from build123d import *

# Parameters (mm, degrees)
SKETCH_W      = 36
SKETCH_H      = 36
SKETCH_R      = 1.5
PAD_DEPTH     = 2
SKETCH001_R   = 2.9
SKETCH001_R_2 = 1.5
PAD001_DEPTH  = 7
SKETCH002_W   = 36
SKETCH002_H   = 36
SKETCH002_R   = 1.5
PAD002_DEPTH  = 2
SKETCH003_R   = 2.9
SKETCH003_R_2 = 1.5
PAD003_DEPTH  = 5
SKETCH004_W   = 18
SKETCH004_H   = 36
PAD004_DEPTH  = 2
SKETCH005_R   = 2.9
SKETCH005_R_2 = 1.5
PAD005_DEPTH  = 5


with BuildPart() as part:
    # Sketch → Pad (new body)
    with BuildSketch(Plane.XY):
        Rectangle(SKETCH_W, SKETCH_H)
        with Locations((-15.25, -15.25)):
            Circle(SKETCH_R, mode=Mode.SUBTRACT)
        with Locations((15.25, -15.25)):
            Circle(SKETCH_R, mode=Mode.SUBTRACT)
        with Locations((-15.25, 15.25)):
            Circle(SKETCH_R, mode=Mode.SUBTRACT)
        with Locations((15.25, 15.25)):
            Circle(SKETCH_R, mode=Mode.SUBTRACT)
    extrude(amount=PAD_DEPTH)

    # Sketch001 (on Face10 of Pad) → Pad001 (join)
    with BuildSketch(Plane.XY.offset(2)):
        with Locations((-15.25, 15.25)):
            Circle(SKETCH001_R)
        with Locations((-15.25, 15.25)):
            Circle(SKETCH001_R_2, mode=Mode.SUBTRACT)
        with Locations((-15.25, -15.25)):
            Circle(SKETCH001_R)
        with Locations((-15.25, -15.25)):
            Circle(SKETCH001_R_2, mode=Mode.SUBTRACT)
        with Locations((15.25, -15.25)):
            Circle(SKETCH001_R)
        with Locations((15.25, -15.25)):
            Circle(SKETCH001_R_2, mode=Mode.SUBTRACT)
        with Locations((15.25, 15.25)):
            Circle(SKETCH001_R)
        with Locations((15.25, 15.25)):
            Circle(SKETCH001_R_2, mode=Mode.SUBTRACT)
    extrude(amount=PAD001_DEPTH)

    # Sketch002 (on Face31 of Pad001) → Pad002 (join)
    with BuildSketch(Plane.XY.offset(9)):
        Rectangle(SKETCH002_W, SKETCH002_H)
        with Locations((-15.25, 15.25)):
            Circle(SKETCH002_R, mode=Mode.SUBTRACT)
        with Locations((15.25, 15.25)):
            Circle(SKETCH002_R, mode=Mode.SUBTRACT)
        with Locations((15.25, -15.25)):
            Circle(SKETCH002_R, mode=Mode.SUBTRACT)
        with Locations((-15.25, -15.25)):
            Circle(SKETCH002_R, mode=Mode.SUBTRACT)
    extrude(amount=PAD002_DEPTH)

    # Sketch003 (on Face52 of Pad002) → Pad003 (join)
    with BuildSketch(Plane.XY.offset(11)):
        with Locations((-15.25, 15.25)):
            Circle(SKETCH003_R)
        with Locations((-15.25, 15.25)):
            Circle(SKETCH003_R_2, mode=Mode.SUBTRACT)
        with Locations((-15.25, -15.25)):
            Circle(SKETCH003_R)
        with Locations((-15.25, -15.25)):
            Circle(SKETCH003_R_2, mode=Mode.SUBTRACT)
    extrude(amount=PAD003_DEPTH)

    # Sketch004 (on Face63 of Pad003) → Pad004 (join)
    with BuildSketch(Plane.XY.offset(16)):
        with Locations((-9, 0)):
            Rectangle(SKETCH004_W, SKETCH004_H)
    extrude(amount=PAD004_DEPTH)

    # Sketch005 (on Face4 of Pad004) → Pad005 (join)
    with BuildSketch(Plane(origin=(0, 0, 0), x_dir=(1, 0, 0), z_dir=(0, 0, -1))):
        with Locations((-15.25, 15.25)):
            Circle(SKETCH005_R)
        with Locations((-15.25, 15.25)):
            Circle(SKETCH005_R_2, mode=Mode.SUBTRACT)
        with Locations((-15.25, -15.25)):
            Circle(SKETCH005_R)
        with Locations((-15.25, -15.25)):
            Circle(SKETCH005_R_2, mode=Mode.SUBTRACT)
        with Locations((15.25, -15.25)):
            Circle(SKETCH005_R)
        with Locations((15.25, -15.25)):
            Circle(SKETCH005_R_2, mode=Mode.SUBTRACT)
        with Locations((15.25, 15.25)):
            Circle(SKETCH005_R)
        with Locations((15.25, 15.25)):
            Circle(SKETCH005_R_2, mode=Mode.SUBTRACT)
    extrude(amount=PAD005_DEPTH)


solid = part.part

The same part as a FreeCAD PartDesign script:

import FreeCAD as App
import Part
import Sketcher

V = App.Vector
Q = App.Units.Quantity


def add_polygon(sketch, points):
    """Adds a closed chain of lines whose ends are joined by coincident constraints."""
    first, n = sketch.GeometryCount, len(points)
    for a, b in zip(points, points[1:] + points[:1]):
        sketch.addGeometry(Part.LineSegment(App.Vector(*a, 0), App.Vector(*b, 0)), False)
    for i in range(n):
        sketch.addConstraint(Sketcher.Constraint("Coincident", first + i, 2, first + (i + 1) % n, 1))

doc = App.newDocument("Part")
body = doc.addObject("PartDesign::Body", "Body")

sketch1 = doc.addObject("Sketcher::SketchObject", "Sketch")
body.addObject(sketch1)
sketch1.AttachmentSupport = (doc.XY_Plane, [""])
sketch1.MapMode = "FlatFace"
add_polygon(sketch1, [(-18, 18), (-18, -18), (18, -18), (18, 18)])
sketch1.addGeometry(Part.Circle(V(-15.25, -15.25, 0), V(0, 0, 1), 1.5), False)
sketch1.addGeometry(Part.Circle(V(15.25, -15.25, 0), V(0, 0, 1), 1.5), False)
sketch1.addGeometry(Part.Circle(V(-15.25, 15.25, 0), V(0, 0, 1), 1.5), False)
sketch1.addGeometry(Part.Circle(V(15.25, 15.25, 0), V(0, 0, 1), 1.5), False)
sketch1.addConstraint(Sketcher.Constraint("Vertical", 0))
sketch1.addConstraint(Sketcher.Constraint("Horizontal", 1))
sketch1.addConstraint(Sketcher.Constraint("Vertical", 2))
sketch1.addConstraint(Sketcher.Constraint("Horizontal", 3))
sketch1.addConstraint(Sketcher.Constraint("Equal", 4, 5))
sketch1.addConstraint(Sketcher.Constraint("Equal", 5, 6))
sketch1.addConstraint(Sketcher.Constraint("Equal", 6, 7))
sketch1.addConstraint(Sketcher.Constraint("Symmetric", 5, 3, 6, 3, -1, 1))
sketch1.addConstraint(Sketcher.Constraint("Symmetric", 4, 3, 7, 3, -1, 1))
sketch1.addConstraint(Sketcher.Constraint("Symmetric", 0, 2, 2, 2, -1, 1))
sketch1.addConstraint(Sketcher.Constraint("Symmetric", 4, 3, 5, 3, -2))
sketch1.addConstraint(Sketcher.Constraint("Equal", 3, 0))
sketch1.addConstraint(Sketcher.Constraint("Diameter", 4, Q("3 mm")))
sketch1.addConstraint(Sketcher.Constraint("DistanceX", 1, 1, 1, 2, Q("36 mm")))
sketch1.addConstraint(Sketcher.Constraint("DistanceX", 4, 3, 5, 3, Q("30.5 mm")))
sketch1.addConstraint(Sketcher.Constraint("DistanceY", 4, 3, 6, 3, Q("30.5 mm")))
pad1 = doc.addObject("PartDesign::Pad", "Pad")
body.addObject(pad1)
pad1.Profile = sketch1
pad1.Length = 2

sketch2 = doc.addObject("Sketcher::SketchObject", "Sketch001")
body.addObject(sketch2)
sketch2.AttachmentSupport = (doc.XY_Plane, [""])
sketch2.MapMode = "FlatFace"
sketch2.AttachmentOffset = App.Placement(V(0, 0, 2), App.Rotation())
sketch2.addGeometry(Part.Circle(V(-15.25, 15.25, 0), V(0, 0, 1), 2.9), False)
sketch2.addGeometry(Part.Circle(V(-15.25, 15.25, 0), V(0, 0, 1), 1.5), False)
sketch2.addGeometry(Part.Circle(V(-15.25, -15.25, 0), V(0, 0, 1), 2.9), False)
sketch2.addGeometry(Part.Circle(V(-15.25, -15.25, 0), V(0, 0, 1), 1.5), False)
sketch2.addGeometry(Part.Circle(V(15.25, -15.25, 0), V(0, 0, 1), 2.9), False)
sketch2.addGeometry(Part.Circle(V(15.25, -15.25, 0), V(0, 0, 1), 1.5), False)
sketch2.addGeometry(Part.Circle(V(15.25, 15.25, 0), V(0, 0, 1), 2.9), False)
sketch2.addGeometry(Part.Circle(V(15.25, 15.25, 0), V(0, 0, 1), 1.5), False)
sketch2.addConstraint(Sketcher.Constraint("Coincident", 1, 3, 0, 3))
sketch2.addConstraint(Sketcher.Constraint("Coincident", 3, 3, 2, 3))
sketch2.addConstraint(Sketcher.Constraint("Coincident", 5, 3, 4, 3))
sketch2.addConstraint(Sketcher.Constraint("Coincident", 7, 3, 6, 3))
sketch2.addConstraint(Sketcher.Constraint("Equal", 0, 2))
sketch2.addConstraint(Sketcher.Constraint("Equal", 1, 3))
sketch2.addConstraint(Sketcher.Constraint("Equal", 2, 4))
sketch2.addConstraint(Sketcher.Constraint("Equal", 3, 5))
sketch2.addConstraint(Sketcher.Constraint("Equal", 4, 6))
sketch2.addConstraint(Sketcher.Constraint("Equal", 5, 7))
sketch2.addConstraint(Sketcher.Constraint("Symmetric", 0, 3, 4, 3, -1, 1))
sketch2.addConstraint(Sketcher.Constraint("Symmetric", 2, 3, 6, 3, -1, 1))
sketch2.addConstraint(Sketcher.Constraint("Symmetric", 2, 3, 4, 3, -2))
sketch2.addConstraint(Sketcher.Constraint("Diameter", 1, Q("3 mm")))
sketch2.addConstraint(Sketcher.Constraint("Diameter", 0, Q("5.8 mm")))
sketch2.addConstraint(Sketcher.Constraint("DistanceY", 2, 3, 0, 3, Q("30.5 mm")))
sketch2.addConstraint(Sketcher.Constraint("DistanceX", 2, 3, 4, 3, Q("30.5 mm")))
pad2 = doc.addObject("PartDesign::Pad", "Pad001")
body.addObject(pad2)
pad2.Profile = sketch2
pad2.Length = 7

sketch3 = doc.addObject("Sketcher::SketchObject", "Sketch002")
body.addObject(sketch3)
sketch3.AttachmentSupport = (doc.XY_Plane, [""])
sketch3.MapMode = "FlatFace"
sketch3.AttachmentOffset = App.Placement(V(0, 0, 9), App.Rotation())
add_polygon(sketch3, [(-18, 18), (-18, -18), (18, -18), (18, 18)])
sketch3.addGeometry(Part.Circle(V(-15.25, -15.25, 0), V(0, 0, 1), 1.5), False)
sketch3.addGeometry(Part.Circle(V(15.25, -15.25, 0), V(0, 0, 1), 1.5), False)
sketch3.addGeometry(Part.Circle(V(-15.25, 15.25, 0), V(0, 0, 1), 1.5), False)
sketch3.addGeometry(Part.Circle(V(15.25, 15.25, 0), V(0, 0, 1), 1.5), False)
sketch3.addConstraint(Sketcher.Constraint("Vertical", 0))
sketch3.addConstraint(Sketcher.Constraint("Horizontal", 1))
sketch3.addConstraint(Sketcher.Constraint("Vertical", 2))
sketch3.addConstraint(Sketcher.Constraint("Horizontal", 3))
sketch3.addConstraint(Sketcher.Constraint("Equal", 4, 5))
sketch3.addConstraint(Sketcher.Constraint("Equal", 5, 6))
sketch3.addConstraint(Sketcher.Constraint("Equal", 6, 7))
sketch3.addConstraint(Sketcher.Constraint("Symmetric", 5, 3, 6, 3, -1, 1))
sketch3.addConstraint(Sketcher.Constraint("Symmetric", 4, 3, 7, 3, -1, 1))
sketch3.addConstraint(Sketcher.Constraint("Symmetric", 0, 2, 2, 2, -1, 1))
sketch3.addConstraint(Sketcher.Constraint("Symmetric", 4, 3, 5, 3, -2))
sketch3.addConstraint(Sketcher.Constraint("Equal", 3, 0))
sketch3.addConstraint(Sketcher.Constraint("Diameter", 4, Q("3 mm")))
sketch3.addConstraint(Sketcher.Constraint("DistanceX", 1, 1, 1, 2, Q("36 mm")))
sketch3.addConstraint(Sketcher.Constraint("DistanceX", 4, 3, 5, 3, Q("30.5 mm")))
sketch3.addConstraint(Sketcher.Constraint("DistanceY", 4, 3, 6, 3, Q("30.5 mm")))
pad3 = doc.addObject("PartDesign::Pad", "Pad002")
body.addObject(pad3)
pad3.Profile = sketch3
pad3.Length = 2

sketch4 = doc.addObject("Sketcher::SketchObject", "Sketch003")
body.addObject(sketch4)
sketch4.AttachmentSupport = (doc.XY_Plane, [""])
sketch4.MapMode = "FlatFace"
sketch4.AttachmentOffset = App.Placement(V(0, 0, 11), App.Rotation())
sketch4.addGeometry(Part.Circle(V(-15.25, 15.25, 0), V(0, 0, 1), 2.9), False)
sketch4.addGeometry(Part.Circle(V(-15.25, 15.25, 0), V(0, 0, 1), 1.5), False)
sketch4.addGeometry(Part.Circle(V(-15.25, -15.25, 0), V(0, 0, 1), 2.9), False)
sketch4.addGeometry(Part.Circle(V(-15.25, -15.25, 0), V(0, 0, 1), 1.5), False)
sketch4.addConstraint(Sketcher.Constraint("Coincident", 1, 3, 0, 3))
sketch4.addConstraint(Sketcher.Constraint("Coincident", 3, 3, 2, 3))
sketch4.addConstraint(Sketcher.Constraint("Equal", 0, 2))
sketch4.addConstraint(Sketcher.Constraint("Equal", 1, 3))
sketch4.addConstraint(Sketcher.Constraint("Symmetric", 0, 3, 2, 3, -1))
sketch4.addConstraint(Sketcher.Constraint("Diameter", 1, Q("3 mm")))
sketch4.addConstraint(Sketcher.Constraint("Diameter", 0, Q("5.8 mm")))
sketch4.addConstraint(Sketcher.Constraint("DistanceY", 2, 3, 0, 3, Q("30.5 mm")))
sketch4.addConstraint(Sketcher.Constraint("DistanceX", 0, 3, -1, 1, Q("15.25 mm")))
pad4 = doc.addObject("PartDesign::Pad", "Pad003")
body.addObject(pad4)
pad4.Profile = sketch4
pad4.Length = 5

sketch5 = doc.addObject("Sketcher::SketchObject", "Sketch004")
body.addObject(sketch5)
sketch5.AttachmentSupport = (doc.XY_Plane, [""])
sketch5.MapMode = "FlatFace"
sketch5.AttachmentOffset = App.Placement(V(0, 0, 16), App.Rotation())
add_polygon(sketch5, [(-18, 18), (-18, -18), (0, -18), (0, 18)])
sketch5.addConstraint(Sketcher.Constraint("Vertical", 0))
sketch5.addConstraint(Sketcher.Constraint("Horizontal", 1))
sketch5.addConstraint(Sketcher.Constraint("Vertical", 2))
sketch5.addConstraint(Sketcher.Constraint("Horizontal", 3))
sketch5.addConstraint(Sketcher.Constraint("Symmetric", 1, 2, 2, 2, -1, 1))
sketch5.addConstraint(Sketcher.Constraint("DistanceX", 1, 1, 1, 2, Q("18 mm")))
sketch5.addConstraint(Sketcher.Constraint("DistanceY", 0, 2, 0, 1, Q("36 mm")))
pad5 = doc.addObject("PartDesign::Pad", "Pad004")
body.addObject(pad5)
pad5.Profile = sketch5
pad5.Length = 2

sketch6 = doc.addObject("Sketcher::SketchObject", "Sketch005")
body.addObject(sketch6)
sketch6.AttachmentSupport = (doc.XY_Plane, [""])
sketch6.MapMode = "FlatFace"
sketch6.addGeometry(Part.Circle(V(-15.25, -15.25, 0), V(0, 0, 1), 2.9), False)
sketch6.addGeometry(Part.Circle(V(-15.25, -15.25, 0), V(0, 0, 1), 1.5), False)
sketch6.addGeometry(Part.Circle(V(-15.25, 15.25, 0), V(0, 0, 1), 2.9), False)
sketch6.addGeometry(Part.Circle(V(-15.25, 15.25, 0), V(0, 0, 1), 1.5), False)
sketch6.addGeometry(Part.Circle(V(15.25, 15.25, 0), V(0, 0, 1), 2.9), False)
sketch6.addGeometry(Part.Circle(V(15.25, 15.25, 0), V(0, 0, 1), 1.5), False)
sketch6.addGeometry(Part.Circle(V(15.25, -15.25, 0), V(0, 0, 1), 2.9), False)
sketch6.addGeometry(Part.Circle(V(15.25, -15.25, 0), V(0, 0, 1), 1.5), False)
sketch6.addConstraint(Sketcher.Constraint("Coincident", 1, 3, 0, 3))
sketch6.addConstraint(Sketcher.Constraint("Coincident", 3, 3, 2, 3))
sketch6.addConstraint(Sketcher.Constraint("Coincident", 5, 3, 4, 3))
sketch6.addConstraint(Sketcher.Constraint("Coincident", 7, 3, 6, 3))
sketch6.addConstraint(Sketcher.Constraint("Equal", 0, 2))
sketch6.addConstraint(Sketcher.Constraint("Equal", 1, 3))
sketch6.addConstraint(Sketcher.Constraint("Equal", 2, 4))
sketch6.addConstraint(Sketcher.Constraint("Equal", 3, 5))
sketch6.addConstraint(Sketcher.Constraint("Equal", 4, 6))
sketch6.addConstraint(Sketcher.Constraint("Equal", 5, 7))
sketch6.addConstraint(Sketcher.Constraint("Symmetric", 0, 3, 4, 3, -1, 1))
sketch6.addConstraint(Sketcher.Constraint("Symmetric", 2, 3, 6, 3, -1, 1))
sketch6.addConstraint(Sketcher.Constraint("Symmetric", 2, 3, 4, 3, -2))
sketch6.addConstraint(Sketcher.Constraint("Diameter", 1, Q("3 mm")))
sketch6.addConstraint(Sketcher.Constraint("Diameter", 0, Q("5.8 mm")))
sketch6.addConstraint(Sketcher.Constraint("DistanceY", 0, 3, 2, 3, Q("30.5 mm")))
sketch6.addConstraint(Sketcher.Constraint("DistanceX", 2, 3, 4, 3, Q("30.5 mm")))
pad6 = doc.addObject("PartDesign::Pad", "Pad005")
body.addObject(pad6)
pad6.Profile = sketch6
pad6.Length = 5
pad6.Reversed = True

doc.recompute()
